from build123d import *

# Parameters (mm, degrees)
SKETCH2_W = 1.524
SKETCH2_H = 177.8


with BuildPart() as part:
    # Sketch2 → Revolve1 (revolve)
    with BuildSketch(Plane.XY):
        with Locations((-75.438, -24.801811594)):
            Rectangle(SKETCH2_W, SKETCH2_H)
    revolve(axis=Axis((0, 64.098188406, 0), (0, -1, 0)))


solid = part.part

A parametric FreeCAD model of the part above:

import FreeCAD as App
import Part
import Sketcher
Q = App.Units.Quantity


def add_polygon(sketch, points):
    """Adds a closed chain of lines whose ends are joined by coincident constraints."""
    first, n = sketch.GeometryCount, len(points)
    for a, b in zip(points, points[1:] + points[:1]):
        sketch.addGeometry(Part.LineSegment(App.Vector(*a, 0), App.Vector(*b, 0)), False)
    for i in range(n):
        sketch.addConstraint(Sketcher.Constraint("Coincident", first + i, 2, first + (i + 1) % n, 1))

doc = App.newDocument("Part")
body = doc.addObject("PartDesign::Body", "Body")

# Sketch on XY plane
sketch1 = body.newObject("Sketcher::SketchObject", "Sketch")
sketch1.AttachmentSupport = (doc.getObject("XY_Plane"), [""])
sketch1.MapMode = "FlatFace"
add_polygon(sketch1, [(-76.2, 64.1), (-76.2, -113.7), (-74.7, -113.7), (-74.7, 64.1)])  # lines 0-3
sketch1.addConstraint(Sketcher.Constraint("Vertical", 0))
sketch1.addConstraint(Sketcher.Constraint("Horizontal", 1))
sketch1.addConstraint(Sketcher.Constraint("Vertical", 2))
sketch1.addConstraint(Sketcher.Constraint("Horizontal", 3))
sketch1.addConstraint(Sketcher.Constraint("DistanceY", 0, 2, 0, 1, Q("7 in")))
sketch1.addConstraint(Sketcher.Constraint("DistanceX", 0, 2, -1, 1, Q("3 in")))
sketch1.addConstraint(Sketcher.Constraint("DistanceX", 1, 1, 1, 2, Q("0.06 in")))
sketch1.addConstraint(Sketcher.Constraint("DistanceY", 0, 2, -1, 1, Q("113.701812 mm")))
revolution = body.newObject("PartDesign::Revolution", "Revolution")
revolution.Profile = sketch1
revolution.ReferenceAxis = (sketch1, ["V_Axis"])
revolution.Angle = 360

doc.recompute()
